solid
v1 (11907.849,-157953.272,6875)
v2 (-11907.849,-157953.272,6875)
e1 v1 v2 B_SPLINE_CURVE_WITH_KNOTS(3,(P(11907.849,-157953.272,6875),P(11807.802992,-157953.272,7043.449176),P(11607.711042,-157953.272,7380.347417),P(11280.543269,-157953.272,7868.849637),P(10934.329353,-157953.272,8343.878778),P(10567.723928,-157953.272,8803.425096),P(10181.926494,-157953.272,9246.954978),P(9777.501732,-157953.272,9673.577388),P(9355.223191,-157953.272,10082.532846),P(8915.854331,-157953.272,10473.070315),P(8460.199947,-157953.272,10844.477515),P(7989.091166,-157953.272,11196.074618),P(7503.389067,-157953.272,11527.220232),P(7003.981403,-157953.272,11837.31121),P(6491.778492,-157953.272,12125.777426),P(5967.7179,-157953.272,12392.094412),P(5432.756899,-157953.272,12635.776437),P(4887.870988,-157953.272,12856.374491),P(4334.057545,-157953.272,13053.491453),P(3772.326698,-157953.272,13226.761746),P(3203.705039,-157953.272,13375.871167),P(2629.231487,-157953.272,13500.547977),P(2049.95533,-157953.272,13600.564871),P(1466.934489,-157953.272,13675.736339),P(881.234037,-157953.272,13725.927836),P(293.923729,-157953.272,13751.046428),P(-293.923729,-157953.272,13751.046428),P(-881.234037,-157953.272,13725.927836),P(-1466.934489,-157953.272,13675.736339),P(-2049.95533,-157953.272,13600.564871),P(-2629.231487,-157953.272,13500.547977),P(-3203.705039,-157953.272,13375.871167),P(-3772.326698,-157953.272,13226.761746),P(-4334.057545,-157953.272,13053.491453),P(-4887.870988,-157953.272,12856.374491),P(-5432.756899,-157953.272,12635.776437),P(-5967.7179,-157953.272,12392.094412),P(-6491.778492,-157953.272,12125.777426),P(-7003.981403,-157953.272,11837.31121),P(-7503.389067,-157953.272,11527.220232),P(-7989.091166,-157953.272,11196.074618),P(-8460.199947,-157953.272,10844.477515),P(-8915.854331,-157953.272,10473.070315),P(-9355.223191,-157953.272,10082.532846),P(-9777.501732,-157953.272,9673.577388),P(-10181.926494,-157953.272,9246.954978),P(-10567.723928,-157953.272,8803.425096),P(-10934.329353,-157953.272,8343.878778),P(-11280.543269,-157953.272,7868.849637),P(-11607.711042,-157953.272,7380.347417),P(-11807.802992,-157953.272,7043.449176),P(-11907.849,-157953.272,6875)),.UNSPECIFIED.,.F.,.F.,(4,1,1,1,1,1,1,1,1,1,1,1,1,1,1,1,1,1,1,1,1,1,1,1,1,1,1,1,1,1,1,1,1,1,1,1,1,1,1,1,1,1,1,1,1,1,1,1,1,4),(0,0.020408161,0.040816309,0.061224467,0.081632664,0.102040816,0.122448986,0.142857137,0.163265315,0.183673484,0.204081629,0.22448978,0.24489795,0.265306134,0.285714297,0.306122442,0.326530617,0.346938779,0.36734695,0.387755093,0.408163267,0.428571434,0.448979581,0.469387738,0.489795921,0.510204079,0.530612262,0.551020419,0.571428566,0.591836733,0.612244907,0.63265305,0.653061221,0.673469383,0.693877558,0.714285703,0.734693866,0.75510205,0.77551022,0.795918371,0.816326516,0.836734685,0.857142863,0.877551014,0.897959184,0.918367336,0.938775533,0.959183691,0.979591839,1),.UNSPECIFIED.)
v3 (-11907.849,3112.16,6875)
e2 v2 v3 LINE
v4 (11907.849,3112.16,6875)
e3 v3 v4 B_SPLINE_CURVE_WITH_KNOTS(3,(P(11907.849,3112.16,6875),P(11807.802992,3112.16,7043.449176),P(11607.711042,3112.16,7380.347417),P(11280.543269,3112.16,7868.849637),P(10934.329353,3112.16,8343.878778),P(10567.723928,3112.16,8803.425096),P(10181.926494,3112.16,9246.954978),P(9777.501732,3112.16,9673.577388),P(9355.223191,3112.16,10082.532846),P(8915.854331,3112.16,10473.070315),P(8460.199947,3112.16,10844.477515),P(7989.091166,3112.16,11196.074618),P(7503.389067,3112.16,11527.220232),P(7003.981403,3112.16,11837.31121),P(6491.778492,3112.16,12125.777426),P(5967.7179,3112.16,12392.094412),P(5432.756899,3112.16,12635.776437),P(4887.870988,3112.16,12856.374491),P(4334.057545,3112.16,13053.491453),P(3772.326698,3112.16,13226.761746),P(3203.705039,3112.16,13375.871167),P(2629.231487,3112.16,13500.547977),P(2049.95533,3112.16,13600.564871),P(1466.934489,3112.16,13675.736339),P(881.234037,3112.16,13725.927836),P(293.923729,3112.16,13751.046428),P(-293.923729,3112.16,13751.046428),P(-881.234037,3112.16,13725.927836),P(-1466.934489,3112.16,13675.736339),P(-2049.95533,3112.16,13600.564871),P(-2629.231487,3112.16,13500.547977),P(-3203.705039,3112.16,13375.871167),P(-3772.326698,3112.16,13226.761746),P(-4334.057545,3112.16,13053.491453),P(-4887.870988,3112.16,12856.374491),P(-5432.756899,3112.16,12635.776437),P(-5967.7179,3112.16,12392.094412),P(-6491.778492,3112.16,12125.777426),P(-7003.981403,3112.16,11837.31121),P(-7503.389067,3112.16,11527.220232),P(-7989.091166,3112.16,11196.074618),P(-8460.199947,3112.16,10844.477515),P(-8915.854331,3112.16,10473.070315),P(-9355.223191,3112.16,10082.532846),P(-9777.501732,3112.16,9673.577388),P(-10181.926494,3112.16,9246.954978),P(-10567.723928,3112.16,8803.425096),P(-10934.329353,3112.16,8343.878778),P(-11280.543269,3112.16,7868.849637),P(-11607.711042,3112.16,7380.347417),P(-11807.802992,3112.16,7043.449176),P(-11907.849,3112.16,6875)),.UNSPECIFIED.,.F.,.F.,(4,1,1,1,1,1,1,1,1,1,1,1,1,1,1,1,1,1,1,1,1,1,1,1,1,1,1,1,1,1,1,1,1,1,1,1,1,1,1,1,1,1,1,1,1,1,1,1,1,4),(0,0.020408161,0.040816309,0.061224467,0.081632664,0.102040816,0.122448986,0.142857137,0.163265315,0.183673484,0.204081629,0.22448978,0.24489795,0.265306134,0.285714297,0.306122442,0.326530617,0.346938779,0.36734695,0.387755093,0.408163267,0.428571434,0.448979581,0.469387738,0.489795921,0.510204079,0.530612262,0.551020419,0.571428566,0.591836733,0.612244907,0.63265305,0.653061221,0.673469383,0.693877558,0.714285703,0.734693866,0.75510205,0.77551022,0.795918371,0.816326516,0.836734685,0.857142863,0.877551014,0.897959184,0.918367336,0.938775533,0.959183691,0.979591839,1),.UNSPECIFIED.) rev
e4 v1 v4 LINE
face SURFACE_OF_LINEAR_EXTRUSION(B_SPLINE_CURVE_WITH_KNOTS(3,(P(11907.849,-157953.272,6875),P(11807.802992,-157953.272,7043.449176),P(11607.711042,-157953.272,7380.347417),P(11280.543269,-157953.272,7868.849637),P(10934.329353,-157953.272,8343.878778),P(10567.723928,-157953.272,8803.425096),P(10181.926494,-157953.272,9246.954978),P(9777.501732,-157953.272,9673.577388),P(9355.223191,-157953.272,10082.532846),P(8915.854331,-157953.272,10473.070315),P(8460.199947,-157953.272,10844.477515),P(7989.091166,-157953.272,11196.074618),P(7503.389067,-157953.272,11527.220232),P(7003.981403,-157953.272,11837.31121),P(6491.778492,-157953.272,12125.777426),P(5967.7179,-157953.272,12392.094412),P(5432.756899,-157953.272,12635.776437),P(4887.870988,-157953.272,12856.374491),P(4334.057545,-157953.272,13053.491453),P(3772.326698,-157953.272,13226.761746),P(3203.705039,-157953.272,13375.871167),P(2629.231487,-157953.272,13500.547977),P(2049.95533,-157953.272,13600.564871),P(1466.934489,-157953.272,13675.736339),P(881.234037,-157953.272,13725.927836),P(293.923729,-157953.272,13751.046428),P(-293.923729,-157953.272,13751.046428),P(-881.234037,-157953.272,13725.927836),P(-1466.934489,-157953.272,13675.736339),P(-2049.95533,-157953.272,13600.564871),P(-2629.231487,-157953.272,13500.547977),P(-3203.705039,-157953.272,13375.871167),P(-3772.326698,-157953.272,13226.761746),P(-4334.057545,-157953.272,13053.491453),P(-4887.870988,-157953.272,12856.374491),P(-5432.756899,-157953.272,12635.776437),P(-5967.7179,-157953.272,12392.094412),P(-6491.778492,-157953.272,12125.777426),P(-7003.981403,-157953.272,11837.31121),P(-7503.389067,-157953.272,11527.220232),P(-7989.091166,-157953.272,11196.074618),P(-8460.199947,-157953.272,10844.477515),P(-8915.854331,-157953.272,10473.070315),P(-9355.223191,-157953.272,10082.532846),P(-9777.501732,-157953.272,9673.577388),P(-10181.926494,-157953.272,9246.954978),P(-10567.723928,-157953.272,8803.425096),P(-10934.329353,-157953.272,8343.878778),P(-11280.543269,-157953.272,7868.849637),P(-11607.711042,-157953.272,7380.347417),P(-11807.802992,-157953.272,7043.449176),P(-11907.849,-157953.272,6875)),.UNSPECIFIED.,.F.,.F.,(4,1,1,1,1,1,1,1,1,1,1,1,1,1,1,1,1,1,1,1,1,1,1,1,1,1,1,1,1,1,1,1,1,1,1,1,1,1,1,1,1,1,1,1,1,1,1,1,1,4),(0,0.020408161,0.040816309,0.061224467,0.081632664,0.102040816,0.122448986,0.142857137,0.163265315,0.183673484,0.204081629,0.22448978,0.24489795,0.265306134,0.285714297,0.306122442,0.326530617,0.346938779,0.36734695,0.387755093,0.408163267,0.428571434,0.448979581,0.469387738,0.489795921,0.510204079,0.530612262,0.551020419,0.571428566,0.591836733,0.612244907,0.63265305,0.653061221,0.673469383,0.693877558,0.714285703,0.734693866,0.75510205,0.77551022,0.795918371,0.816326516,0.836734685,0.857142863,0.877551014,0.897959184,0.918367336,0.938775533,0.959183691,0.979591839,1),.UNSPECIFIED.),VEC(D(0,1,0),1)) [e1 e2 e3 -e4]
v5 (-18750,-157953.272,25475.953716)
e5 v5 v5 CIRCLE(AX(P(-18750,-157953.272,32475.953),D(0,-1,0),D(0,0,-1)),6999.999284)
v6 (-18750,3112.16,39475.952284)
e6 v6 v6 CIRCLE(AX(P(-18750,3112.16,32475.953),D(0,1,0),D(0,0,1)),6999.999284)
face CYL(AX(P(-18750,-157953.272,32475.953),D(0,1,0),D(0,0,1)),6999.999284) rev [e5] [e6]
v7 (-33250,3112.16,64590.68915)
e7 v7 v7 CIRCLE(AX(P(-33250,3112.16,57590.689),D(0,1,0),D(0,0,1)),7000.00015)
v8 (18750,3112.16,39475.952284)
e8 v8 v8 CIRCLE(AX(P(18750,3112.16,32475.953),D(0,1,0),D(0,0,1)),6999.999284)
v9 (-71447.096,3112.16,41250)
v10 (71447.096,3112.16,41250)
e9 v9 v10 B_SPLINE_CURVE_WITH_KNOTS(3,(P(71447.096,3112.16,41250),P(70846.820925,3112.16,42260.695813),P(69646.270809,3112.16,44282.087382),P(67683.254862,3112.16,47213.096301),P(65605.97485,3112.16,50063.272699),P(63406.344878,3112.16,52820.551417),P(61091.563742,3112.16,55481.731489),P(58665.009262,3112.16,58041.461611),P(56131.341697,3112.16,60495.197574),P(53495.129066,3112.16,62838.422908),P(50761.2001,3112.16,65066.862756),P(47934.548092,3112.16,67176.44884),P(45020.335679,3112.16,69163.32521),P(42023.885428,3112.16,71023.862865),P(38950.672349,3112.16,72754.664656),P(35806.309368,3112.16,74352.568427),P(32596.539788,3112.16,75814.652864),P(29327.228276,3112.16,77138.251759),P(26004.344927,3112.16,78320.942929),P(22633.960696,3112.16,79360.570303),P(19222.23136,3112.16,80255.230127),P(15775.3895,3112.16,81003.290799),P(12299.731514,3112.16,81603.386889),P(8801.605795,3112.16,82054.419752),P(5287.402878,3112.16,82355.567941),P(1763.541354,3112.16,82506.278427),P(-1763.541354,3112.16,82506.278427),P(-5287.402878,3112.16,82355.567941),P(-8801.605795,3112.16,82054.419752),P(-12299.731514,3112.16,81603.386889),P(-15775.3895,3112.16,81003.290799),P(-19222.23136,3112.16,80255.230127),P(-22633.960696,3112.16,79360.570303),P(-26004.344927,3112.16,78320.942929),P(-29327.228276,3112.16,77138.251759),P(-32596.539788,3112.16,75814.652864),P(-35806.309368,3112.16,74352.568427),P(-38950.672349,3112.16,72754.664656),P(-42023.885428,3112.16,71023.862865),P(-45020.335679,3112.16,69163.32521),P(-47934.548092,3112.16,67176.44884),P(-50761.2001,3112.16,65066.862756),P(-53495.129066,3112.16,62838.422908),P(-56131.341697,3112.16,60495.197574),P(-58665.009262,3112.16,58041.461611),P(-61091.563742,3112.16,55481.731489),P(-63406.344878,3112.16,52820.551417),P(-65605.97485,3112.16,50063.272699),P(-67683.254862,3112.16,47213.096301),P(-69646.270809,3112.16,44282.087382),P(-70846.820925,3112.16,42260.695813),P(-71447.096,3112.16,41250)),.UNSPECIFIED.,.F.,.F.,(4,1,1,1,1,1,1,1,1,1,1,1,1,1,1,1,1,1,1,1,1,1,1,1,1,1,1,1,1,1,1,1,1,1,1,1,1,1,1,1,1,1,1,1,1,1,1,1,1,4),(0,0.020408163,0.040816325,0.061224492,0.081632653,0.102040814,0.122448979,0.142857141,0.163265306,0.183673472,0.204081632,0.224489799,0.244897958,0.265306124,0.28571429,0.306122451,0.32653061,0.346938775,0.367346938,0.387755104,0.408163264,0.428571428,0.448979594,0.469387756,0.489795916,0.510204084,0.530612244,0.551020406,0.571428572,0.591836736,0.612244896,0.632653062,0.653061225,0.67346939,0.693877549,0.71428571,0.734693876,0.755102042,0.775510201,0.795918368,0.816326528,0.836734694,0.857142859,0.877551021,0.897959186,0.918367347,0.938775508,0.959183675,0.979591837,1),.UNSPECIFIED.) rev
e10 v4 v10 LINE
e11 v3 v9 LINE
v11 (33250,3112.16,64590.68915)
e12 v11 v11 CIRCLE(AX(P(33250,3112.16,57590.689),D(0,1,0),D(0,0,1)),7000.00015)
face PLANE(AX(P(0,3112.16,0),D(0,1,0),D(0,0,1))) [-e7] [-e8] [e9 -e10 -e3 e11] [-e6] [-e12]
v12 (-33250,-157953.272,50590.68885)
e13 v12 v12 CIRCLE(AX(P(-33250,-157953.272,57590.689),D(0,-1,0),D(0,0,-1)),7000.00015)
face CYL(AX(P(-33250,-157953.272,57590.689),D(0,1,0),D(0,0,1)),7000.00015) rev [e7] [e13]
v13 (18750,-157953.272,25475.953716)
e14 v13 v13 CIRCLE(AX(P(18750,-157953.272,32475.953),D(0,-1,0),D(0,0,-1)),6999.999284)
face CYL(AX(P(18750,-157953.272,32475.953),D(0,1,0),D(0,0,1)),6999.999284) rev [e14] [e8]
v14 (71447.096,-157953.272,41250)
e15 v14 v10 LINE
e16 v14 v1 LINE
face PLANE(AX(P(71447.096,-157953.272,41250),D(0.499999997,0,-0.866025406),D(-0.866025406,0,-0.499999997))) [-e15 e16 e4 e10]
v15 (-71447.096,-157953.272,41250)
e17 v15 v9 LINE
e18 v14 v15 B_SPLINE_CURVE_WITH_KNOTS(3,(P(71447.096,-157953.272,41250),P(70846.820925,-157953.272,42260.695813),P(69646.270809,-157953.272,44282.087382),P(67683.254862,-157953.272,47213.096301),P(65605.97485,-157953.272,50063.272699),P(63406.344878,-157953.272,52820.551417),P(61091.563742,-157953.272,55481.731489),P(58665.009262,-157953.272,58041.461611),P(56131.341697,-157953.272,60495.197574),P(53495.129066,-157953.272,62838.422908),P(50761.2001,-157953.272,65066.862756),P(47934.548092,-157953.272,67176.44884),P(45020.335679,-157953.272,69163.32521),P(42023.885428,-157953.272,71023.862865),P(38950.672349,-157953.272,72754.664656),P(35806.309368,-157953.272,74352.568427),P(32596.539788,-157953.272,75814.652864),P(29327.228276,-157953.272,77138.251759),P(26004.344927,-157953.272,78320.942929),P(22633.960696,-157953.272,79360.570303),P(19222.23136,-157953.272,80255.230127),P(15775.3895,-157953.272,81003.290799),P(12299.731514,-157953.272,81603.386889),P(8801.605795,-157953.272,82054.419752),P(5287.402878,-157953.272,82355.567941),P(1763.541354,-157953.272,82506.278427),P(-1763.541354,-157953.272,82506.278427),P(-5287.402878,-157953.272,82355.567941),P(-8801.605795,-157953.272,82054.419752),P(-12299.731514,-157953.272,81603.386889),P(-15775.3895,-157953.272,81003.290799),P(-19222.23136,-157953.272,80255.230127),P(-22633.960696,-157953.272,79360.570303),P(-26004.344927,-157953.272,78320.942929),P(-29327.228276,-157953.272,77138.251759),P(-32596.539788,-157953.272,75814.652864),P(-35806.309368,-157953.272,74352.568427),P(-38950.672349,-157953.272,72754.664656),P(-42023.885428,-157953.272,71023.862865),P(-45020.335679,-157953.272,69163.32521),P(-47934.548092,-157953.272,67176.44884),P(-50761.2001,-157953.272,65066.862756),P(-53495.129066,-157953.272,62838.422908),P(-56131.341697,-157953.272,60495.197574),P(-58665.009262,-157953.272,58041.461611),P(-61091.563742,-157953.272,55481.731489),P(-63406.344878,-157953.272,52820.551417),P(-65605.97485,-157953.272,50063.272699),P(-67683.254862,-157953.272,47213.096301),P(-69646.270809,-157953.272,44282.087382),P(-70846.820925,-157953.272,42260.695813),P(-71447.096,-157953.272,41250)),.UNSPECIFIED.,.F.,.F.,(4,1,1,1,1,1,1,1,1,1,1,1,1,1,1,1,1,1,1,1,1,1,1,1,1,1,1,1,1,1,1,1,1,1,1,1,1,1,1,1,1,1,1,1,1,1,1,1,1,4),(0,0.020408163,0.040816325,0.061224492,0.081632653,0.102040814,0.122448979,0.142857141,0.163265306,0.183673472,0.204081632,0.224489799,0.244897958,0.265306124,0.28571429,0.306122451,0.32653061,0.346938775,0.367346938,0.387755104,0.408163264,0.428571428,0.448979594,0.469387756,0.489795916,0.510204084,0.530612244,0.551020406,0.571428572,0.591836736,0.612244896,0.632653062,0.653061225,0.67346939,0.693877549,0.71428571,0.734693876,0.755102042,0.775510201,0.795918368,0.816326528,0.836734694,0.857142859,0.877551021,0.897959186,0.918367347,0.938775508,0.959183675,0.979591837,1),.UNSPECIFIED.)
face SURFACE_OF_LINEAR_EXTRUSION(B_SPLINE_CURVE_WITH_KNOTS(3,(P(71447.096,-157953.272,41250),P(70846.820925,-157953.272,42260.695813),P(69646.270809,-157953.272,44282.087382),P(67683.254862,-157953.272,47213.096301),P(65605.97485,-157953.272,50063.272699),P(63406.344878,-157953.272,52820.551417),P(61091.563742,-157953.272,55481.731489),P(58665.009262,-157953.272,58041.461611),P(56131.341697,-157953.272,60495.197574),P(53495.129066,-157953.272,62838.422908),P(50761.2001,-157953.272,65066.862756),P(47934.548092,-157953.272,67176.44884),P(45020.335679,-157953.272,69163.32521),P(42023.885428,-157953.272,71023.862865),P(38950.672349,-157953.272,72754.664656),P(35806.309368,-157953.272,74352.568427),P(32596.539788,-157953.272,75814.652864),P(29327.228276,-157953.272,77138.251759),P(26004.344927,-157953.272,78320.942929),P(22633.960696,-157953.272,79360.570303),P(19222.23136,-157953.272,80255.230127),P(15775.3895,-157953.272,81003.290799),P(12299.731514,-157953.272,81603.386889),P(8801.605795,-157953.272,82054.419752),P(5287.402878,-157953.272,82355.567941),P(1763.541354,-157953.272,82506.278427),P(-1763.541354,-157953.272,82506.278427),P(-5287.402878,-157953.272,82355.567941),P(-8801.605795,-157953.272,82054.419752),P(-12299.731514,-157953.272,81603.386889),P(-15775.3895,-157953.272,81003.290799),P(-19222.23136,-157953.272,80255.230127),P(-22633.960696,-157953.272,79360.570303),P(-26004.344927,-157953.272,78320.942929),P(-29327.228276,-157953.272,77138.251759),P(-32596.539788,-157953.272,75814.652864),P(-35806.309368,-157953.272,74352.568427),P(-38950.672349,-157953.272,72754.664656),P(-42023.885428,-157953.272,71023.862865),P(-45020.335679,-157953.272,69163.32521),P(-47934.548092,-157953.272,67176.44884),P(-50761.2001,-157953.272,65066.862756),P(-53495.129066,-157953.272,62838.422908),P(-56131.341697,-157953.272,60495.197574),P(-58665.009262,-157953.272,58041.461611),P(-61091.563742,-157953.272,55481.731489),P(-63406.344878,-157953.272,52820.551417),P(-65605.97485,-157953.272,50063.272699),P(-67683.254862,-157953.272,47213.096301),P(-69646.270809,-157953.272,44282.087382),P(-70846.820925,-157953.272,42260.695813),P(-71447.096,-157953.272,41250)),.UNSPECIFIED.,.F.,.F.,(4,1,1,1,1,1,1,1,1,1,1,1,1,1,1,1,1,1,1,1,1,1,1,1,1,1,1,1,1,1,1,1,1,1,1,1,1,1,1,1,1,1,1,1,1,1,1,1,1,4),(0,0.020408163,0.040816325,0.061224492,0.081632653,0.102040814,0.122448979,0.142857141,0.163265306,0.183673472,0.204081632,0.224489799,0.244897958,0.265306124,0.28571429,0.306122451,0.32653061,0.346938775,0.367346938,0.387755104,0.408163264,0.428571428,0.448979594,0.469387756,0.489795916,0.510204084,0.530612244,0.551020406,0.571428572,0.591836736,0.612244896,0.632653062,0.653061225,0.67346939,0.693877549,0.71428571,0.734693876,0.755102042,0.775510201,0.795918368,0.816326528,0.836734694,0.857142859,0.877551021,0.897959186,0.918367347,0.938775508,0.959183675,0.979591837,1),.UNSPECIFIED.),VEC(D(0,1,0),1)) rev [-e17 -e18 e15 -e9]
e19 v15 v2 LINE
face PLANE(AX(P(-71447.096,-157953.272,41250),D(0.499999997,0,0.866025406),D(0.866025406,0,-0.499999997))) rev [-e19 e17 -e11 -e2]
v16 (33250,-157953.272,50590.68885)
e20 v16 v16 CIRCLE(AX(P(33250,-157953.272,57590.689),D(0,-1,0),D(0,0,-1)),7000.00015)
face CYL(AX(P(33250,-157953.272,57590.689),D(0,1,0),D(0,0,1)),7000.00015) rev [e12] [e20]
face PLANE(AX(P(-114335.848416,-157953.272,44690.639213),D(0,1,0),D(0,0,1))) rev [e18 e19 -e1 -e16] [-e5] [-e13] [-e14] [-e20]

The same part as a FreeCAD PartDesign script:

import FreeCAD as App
import Part
import Sketcher

V = App.Vector
Q = App.Units.Quantity

doc = App.newDocument("Part")
body = doc.addObject("PartDesign::Body", "Body")

sketch1 = doc.addObject("Sketcher::SketchObject", "Sketch")
body.addObject(sketch1)
sketch1.AttachmentSupport = (doc.XZ_Plane, [""])
sketch1.MapMode = "FlatFace"
sketch1.AttachmentOffset = App.Placement(V(0, 0, 157953.272), App.Rotation())
sketch1.addGeometry([
    Part.LineSegment(V(-71447.096, 41250, 0), V(-11907.849, 6875, 0)),
    Part.BSplineCurve([V(11907.849, 6875, 0), V(11807.802992, 7043.449176, 0), V(11607.711042, 7380.347417, 0), V(11280.543269, 7868.849637, 0), V(10934.329353, 8343.878778, 0), V(10567.723928, 8803.425096, 0), V(10181.926494, 9246.954978, 0), V(9777.501732, 9673.577388, 0), V(9355.223191, 10082.532846, 0), V(8915.854331, 10473.070315, 0), V(8460.199947, 10844.477515, 0), V(7989.091166, 11196.074618, 0), V(7503.389067, 11527.220232, 0), V(7003.981403, 11837.31121, 0), V(6491.778492, 12125.777426, 0), V(5967.7179, 12392.094412, 0), V(5432.756899, 12635.776437, 0), V(4887.870988, 12856.374491, 0), V(4334.057545, 13053.491453, 0), V(3772.326698, 13226.761746, 0), V(3203.705039, 13375.871167, 0), V(2629.231487, 13500.547977, 0), V(2049.95533, 13600.564871, 0), V(1466.934489, 13675.736339, 0), V(881.234037, 13725.927836, 0), V(293.923729, 13751.046428, 0), V(-293.923729, 13751.046428, 0), V(-881.234037, 13725.927836, 0), V(-1466.934489, 13675.736339, 0), V(-2049.95533, 13600.564871, 0), V(-2629.231487, 13500.547977, 0), V(-3203.705039, 13375.871167, 0), V(-3772.326698, 13226.761746, 0), V(-4334.057545, 13053.491453, 0), V(-4887.870988, 12856.374491, 0), V(-5432.756899, 12635.776437, 0), V(-5967.7179, 12392.094412, 0), V(-6491.778492, 12125.777426, 0), V(-7003.981403, 11837.31121, 0), V(-7503.389067, 11527.220232, 0), V(-7989.091166, 11196.074618, 0), V(-8460.199947, 10844.477515, 0), V(-8915.854331, 10473.070315, 0), V(-9355.223191, 10082.532846, 0), V(-9777.501732, 9673.577388, 0), V(-10181.926494, 9246.954978, 0), V(-10567.723928, 8803.425096, 0), V(-10934.329353, 8343.878778, 0), V(-11280.543269, 7868.849637, 0), V(-11607.711042, 7380.347417, 0), V(-11807.802992, 7043.449176, 0), V(-11907.849, 6875, 0)], [4, 1, 1, 1, 1, 1, 1, 1, 1, 1, 1, 1, 1, 1, 1, 1, 1, 1, 1, 1, 1, 1, 1, 1, 1, 1, 1, 1, 1, 1, 1, 1, 1, 1, 1, 1, 1, 1, 1, 1, 1, 1, 1, 1, 1, 1, 1, 1, 1, 4], [0, 0.020408161, 0.040816309, 0.061224467, 0.081632664, 0.102040816, 0.122448986, 0.142857137, 0.163265315, 0.183673484, 0.204081629, 0.22448978, 0.24489795, 0.265306134, 0.285714297, 0.306122442, 0.326530617, 0.346938779, 0.36734695, 0.387755093, 0.408163267, 0.428571434, 0.448979581, 0.469387738, 0.489795921, 0.510204079, 0.530612262, 0.551020419, 0.571428566, 0.591836733, 0.612244907, 0.63265305, 0.653061221, 0.673469383, 0.693877558, 0.714285703, 0.734693866, 0.75510205, 0.77551022, 0.795918371, 0.816326516, 0.836734685, 0.857142863, 0.877551014, 0.897959184, 0.918367336, 0.938775533, 0.959183691, 0.979591839, 1], False, 3, [1, 1, 1, 1, 1, 1, 1, 1, 1, 1, 1, 1, 1, 1, 1, 1, 1, 1, 1, 1, 1, 1, 1, 1, 1, 1, 1, 1, 1, 1, 1, 1, 1, 1, 1, 1, 1, 1, 1, 1, 1, 1, 1, 1, 1, 1, 1, 1, 1, 1, 1, 1], False),
    Part.LineSegment(V(11907.849, 6875, 0), V(71447.096, 41250, 0)),
    Part.BSplineCurve([V(71447.096, 41250, 0), V(70846.820925, 42260.695813, 0), V(69646.270809, 44282.087382, 0), V(67683.254862, 47213.096301, 0), V(65605.97485, 50063.272699, 0), V(63406.344878, 52820.551417, 0), V(61091.563742, 55481.731489, 0), V(58665.009262, 58041.461611, 0), V(56131.341697, 60495.197574, 0), V(53495.129066, 62838.422908, 0), V(50761.2001, 65066.862756, 0), V(47934.548092, 67176.44884, 0), V(45020.335679, 69163.32521, 0), V(42023.885428, 71023.862865, 0), V(38950.672349, 72754.664656, 0), V(35806.309368, 74352.568427, 0), V(32596.539788, 75814.652864, 0), V(29327.228276, 77138.251759, 0), V(26004.344927, 78320.942929, 0), V(22633.960696, 79360.570303, 0), V(19222.23136, 80255.230127, 0), V(15775.3895, 81003.290799, 0), V(12299.731514, 81603.386889, 0), V(8801.605795, 82054.419752, 0), V(5287.402878, 82355.567941, 0), V(1763.541354, 82506.278427, 0), V(-1763.541354, 82506.278427, 0), V(-5287.402878, 82355.567941, 0), V(-8801.605795, 82054.419752, 0), V(-12299.731514, 81603.386889, 0), V(-15775.3895, 81003.290799, 0), V(-19222.23136, 80255.230127, 0), V(-22633.960696, 79360.570303, 0), V(-26004.344927, 78320.942929, 0), V(-29327.228276, 77138.251759, 0), V(-32596.539788, 75814.652864, 0), V(-35806.309368, 74352.568427, 0), V(-38950.672349, 72754.664656, 0), V(-42023.885428, 71023.862865, 0), V(-45020.335679, 69163.32521, 0), V(-47934.548092, 67176.44884, 0), V(-50761.2001, 65066.862756, 0), V(-53495.129066, 62838.422908, 0), V(-56131.341697, 60495.197574, 0), V(-58665.009262, 58041.461611, 0), V(-61091.563742, 55481.731489, 0), V(-63406.344878, 52820.551417, 0), V(-65605.97485, 50063.272699, 0), V(-67683.254862, 47213.096301, 0), V(-69646.270809, 44282.087382, 0), V(-70846.820925, 42260.695813, 0), V(-71447.096, 41250, 0)], [4, 1, 1, 1, 1, 1, 1, 1, 1, 1, 1, 1, 1, 1, 1, 1, 1, 1, 1, 1, 1, 1, 1, 1, 1, 1, 1, 1, 1, 1, 1, 1, 1, 1, 1, 1, 1, 1, 1, 1, 1, 1, 1, 1, 1, 1, 1, 1, 1, 4], [0, 0.020408163, 0.040816325, 0.061224492, 0.081632653, 0.102040814, 0.122448979, 0.142857141, 0.163265306, 0.183673472, 0.204081632, 0.224489799, 0.244897958, 0.265306124, 0.28571429, 0.306122451, 0.32653061, 0.346938775, 0.367346938, 0.387755104, 0.408163264, 0.428571428, 0.448979594, 0.469387756, 0.489795916, 0.510204084, 0.530612244, 0.551020406, 0.571428572, 0.591836736, 0.612244896, 0.632653062, 0.653061225, 0.67346939, 0.693877549, 0.71428571, 0.734693876, 0.755102042, 0.775510201, 0.795918368, 0.816326528, 0.836734694, 0.857142859, 0.877551021, 0.897959186, 0.918367347, 0.938775508, 0.959183675, 0.979591837, 1], False, 3, [1, 1, 1, 1, 1, 1, 1, 1, 1, 1, 1, 1, 1, 1, 1, 1, 1, 1, 1, 1, 1, 1, 1, 1, 1, 1, 1, 1, 1, 1, 1, 1, 1, 1, 1, 1, 1, 1, 1, 1, 1, 1, 1, 1, 1, 1, 1, 1, 1, 1, 1, 1], False),
    Part.Circle(V(-18750, 32475.953, 0), V(0, 0, 1), 6999.999284),
    Part.Circle(V(18750, 32475.953, 0), V(0, 0, 1), 6999.999284),
    Part.Circle(V(-33250, 57590.689, 0), V(0, 0, 1), 7000.00015),
    Part.Circle(V(33250, 57590.689, 0), V(0, 0, 1), 7000.00015),
], False)
sketch1.addConstraint([
    Sketcher.Constraint("Block", 1),
    Sketcher.Constraint("Block", 3),
    Sketcher.Constraint("Coincident", 0, 2, 1, 2),
    Sketcher.Constraint("Coincident", 1, 1, 2, 1),
    Sketcher.Constraint("Coincident", 2, 2, 3, 1),
    Sketcher.Constraint("Coincident", 3, 2, 0, 1),
    Sketcher.Constraint("Equal", 4, 5),
    Sketcher.Constraint("Equal", 6, 7),
    Sketcher.Constraint("Symmetric", 4, 3, 5, 3, -2),
    Sketcher.Constraint("Symmetric", 6, 3, 7, 3, -2),
    Sketcher.Constraint("DistanceX", 4, 3, -1, 1, Q("18750 mm")),
    Sketcher.Constraint("DistanceX", 6, 3, -1, 1, Q("33250 mm")),
    Sketcher.Constraint("Diameter", 6, Q("14000.000301 mm")),
    Sketcher.Constraint("Diameter", 4, Q("13999.998568 mm")),
    Sketcher.Constraint("DistanceY", -1, 1, 4, 3, Q("32475.953 mm")),
    Sketcher.Constraint("DistanceY", -1, 1, 6, 3, Q("57590.689 mm")),
])
pad1 = doc.addObject("PartDesign::Pad", "Pad")
body.addObject(pad1)
pad1.Profile = sketch1
pad1.Length = 161065.432
pad1.Reversed = True

doc.recompute()
